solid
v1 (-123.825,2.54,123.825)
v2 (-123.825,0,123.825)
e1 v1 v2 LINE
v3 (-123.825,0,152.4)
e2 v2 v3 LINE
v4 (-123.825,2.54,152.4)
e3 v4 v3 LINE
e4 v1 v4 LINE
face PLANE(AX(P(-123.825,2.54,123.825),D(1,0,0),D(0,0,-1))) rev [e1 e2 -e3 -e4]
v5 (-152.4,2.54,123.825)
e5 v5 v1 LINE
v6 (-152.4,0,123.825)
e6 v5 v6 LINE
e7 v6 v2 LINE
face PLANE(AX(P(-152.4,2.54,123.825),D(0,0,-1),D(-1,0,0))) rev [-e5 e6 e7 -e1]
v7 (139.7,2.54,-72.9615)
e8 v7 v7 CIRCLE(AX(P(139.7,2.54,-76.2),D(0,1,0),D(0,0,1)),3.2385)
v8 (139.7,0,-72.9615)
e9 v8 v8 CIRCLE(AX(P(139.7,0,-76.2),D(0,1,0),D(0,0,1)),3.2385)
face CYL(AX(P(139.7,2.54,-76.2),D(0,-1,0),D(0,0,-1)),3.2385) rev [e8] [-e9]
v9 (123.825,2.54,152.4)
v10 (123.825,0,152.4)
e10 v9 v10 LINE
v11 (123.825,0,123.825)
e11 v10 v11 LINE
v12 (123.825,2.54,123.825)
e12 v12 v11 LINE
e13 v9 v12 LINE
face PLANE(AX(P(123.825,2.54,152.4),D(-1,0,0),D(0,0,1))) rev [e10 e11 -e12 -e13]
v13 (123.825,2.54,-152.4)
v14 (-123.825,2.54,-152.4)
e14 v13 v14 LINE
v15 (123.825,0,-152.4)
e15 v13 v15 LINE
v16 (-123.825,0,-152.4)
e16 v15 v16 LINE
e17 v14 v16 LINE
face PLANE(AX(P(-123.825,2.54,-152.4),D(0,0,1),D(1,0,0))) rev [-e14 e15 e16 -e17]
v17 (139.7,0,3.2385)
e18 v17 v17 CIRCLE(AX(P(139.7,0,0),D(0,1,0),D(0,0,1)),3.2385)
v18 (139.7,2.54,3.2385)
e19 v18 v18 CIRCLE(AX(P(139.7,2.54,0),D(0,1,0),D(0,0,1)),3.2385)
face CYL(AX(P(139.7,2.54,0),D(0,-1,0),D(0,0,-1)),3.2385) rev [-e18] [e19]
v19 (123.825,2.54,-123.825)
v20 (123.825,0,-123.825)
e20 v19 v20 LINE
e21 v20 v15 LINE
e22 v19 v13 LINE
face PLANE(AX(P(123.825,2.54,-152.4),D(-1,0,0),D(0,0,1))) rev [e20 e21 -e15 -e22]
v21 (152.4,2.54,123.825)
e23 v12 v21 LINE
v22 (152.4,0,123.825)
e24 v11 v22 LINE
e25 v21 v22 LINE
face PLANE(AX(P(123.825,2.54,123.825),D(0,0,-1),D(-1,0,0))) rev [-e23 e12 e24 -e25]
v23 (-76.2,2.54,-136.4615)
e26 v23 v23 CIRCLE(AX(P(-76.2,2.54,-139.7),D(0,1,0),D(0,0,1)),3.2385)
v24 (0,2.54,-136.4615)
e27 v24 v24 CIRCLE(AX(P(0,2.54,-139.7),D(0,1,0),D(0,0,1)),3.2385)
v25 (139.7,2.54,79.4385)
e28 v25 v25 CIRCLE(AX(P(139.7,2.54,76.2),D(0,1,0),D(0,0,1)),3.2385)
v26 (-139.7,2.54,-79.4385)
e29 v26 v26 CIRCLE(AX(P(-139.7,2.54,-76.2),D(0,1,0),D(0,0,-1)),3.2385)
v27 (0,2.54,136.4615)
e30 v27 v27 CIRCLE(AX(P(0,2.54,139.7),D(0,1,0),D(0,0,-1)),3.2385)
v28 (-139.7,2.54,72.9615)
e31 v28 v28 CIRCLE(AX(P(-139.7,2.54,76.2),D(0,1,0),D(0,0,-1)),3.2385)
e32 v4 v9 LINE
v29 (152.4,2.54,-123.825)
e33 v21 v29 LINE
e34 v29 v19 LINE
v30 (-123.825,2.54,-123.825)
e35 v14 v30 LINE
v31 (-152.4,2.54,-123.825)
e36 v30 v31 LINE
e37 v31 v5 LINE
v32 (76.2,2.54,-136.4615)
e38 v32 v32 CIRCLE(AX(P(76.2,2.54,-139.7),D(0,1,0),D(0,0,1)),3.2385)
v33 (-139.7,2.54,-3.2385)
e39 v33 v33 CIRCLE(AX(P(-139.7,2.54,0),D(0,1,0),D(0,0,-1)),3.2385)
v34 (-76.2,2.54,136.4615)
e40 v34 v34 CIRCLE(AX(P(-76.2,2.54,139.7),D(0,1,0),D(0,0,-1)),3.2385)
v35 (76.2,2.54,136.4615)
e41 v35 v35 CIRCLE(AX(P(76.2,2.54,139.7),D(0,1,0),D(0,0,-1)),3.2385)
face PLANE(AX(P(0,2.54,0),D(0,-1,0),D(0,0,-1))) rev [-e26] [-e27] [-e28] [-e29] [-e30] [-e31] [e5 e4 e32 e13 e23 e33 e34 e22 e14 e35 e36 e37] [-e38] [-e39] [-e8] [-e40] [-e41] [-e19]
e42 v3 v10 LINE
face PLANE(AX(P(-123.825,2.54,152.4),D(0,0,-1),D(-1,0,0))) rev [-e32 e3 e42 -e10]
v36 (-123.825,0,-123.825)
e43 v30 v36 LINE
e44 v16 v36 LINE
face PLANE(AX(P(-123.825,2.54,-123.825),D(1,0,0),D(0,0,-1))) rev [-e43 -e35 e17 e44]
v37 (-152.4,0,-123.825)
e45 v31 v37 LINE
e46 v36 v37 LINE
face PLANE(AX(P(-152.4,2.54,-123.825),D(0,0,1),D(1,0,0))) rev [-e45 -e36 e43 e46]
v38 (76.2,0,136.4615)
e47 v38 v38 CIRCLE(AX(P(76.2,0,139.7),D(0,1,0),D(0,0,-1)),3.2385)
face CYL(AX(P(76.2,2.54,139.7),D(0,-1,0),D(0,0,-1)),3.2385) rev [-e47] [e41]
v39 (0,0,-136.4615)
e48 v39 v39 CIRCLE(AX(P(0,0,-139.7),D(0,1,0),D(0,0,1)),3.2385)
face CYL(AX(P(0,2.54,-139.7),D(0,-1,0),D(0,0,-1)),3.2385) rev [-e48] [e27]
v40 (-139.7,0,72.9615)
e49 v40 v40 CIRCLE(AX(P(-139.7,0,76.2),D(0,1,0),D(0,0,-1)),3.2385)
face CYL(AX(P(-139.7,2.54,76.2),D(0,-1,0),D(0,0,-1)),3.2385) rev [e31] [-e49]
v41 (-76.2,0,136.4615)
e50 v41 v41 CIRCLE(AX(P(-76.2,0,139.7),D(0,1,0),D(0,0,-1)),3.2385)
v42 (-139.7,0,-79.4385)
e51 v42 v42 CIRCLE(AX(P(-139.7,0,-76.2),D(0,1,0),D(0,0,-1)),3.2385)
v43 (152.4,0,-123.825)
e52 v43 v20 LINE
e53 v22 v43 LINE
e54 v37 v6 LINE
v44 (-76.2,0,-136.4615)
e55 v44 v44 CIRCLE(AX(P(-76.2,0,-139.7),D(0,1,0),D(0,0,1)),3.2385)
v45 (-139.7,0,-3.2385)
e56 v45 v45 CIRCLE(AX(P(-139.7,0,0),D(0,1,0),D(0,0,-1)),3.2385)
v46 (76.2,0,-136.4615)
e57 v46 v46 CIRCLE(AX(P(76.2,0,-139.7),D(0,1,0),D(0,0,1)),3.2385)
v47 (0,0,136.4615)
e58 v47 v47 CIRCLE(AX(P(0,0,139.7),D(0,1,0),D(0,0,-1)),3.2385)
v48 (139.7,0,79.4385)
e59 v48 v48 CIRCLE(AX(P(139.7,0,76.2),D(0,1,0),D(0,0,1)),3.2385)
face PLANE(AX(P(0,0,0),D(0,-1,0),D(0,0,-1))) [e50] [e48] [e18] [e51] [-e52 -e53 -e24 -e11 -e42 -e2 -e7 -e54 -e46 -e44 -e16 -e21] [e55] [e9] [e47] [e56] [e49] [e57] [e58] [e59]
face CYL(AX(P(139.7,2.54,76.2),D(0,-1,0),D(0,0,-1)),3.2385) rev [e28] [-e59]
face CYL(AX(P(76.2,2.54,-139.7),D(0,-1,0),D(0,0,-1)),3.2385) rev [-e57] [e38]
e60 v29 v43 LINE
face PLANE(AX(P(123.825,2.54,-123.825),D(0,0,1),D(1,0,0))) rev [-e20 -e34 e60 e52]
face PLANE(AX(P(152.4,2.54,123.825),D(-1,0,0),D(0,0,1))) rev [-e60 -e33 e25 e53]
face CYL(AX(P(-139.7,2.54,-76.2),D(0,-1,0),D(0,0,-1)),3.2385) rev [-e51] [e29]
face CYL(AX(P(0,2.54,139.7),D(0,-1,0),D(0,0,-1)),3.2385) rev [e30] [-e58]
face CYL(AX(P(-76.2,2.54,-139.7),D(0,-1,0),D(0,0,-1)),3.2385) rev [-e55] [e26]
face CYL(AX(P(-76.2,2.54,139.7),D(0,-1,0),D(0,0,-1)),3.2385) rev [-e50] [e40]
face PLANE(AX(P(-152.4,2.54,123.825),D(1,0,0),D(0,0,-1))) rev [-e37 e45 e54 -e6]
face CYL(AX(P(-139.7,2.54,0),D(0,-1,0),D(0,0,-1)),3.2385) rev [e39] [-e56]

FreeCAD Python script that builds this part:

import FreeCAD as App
import Part
import Sketcher

V = App.Vector
Q = App.Units.Quantity


def add_polygon(sketch, points):
    """Adds a closed chain of lines whose ends are joined by coincident constraints."""
    first, n = sketch.GeometryCount, len(points)
    for a, b in zip(points, points[1:] + points[:1]):
        sketch.addGeometry(Part.LineSegment(App.Vector(*a, 0), App.Vector(*b, 0)), False)
    for i in range(n):
        sketch.addConstraint(Sketcher.Constraint("Coincident", first + i, 2, first + (i + 1) % n, 1))

doc = App.newDocument("Part")
body = doc.addObject("PartDesign::Body", "Body")

# Sketch on XZ plane
sketch1 = doc.addObject("Sketcher::SketchObject", "Sketch")
body.addObject(sketch1)
sketch1.AttachmentSupport = (doc.XZ_Plane, [""])
sketch1.MapMode = "FlatFace"
add_polygon(sketch1, [(123.8, -123.8), (123.8, -152.4), (-123.8, -152.4), (-123.8, -123.8), (-152.4, -123.8), (-152.4, 123.8), (-123.8, 123.8), (-123.8, 152.4), (123.8, 152.4), (123.8, 123.8), (152.4, 123.8), (152.4, -123.8)])  # lines 0-11
sketch1.addGeometry(Part.Circle(V(76.2, 139.7, 0), V(0, 0, 1), 3.2), False)  # 12
sketch1.addGeometry(Part.Circle(V(139.7, 76.2, 0), V(0, 0, 1), 3.2), False)  # 13
sketch1.addGeometry(Part.Circle(V(0, 139.7, 0), V(0, 0, 1), 3.2), False)  # 14
sketch1.addGeometry(Part.Circle(V(-76.2, 139.7, 0), V(0, 0, 1), 3.2), False)  # 15
sketch1.addGeometry(Part.Circle(V(-139.7, 76.2, 0), V(0, 0, 1), 3.2), False)  # 16
sketch1.addGeometry(Part.Circle(V(139.7, 0, 0), V(0, 0, 1), 3.2), False)  # 17
sketch1.addGeometry(Part.Circle(V(139.7, -76.2, 0), V(0, 0, 1), 3.2), False)  # 18
sketch1.addGeometry(Part.Circle(V(76.2, -139.7, 0), V(0, 0, 1), 3.2), False)  # 19
sketch1.addGeometry(Part.Circle(V(-139.7, 0, 0), V(0, 0, 1), 3.2), False)  # 20
sketch1.addGeometry(Part.Circle(V(0, -139.7, 0), V(0, 0, 1), 3.2), False)  # 21
sketch1.addGeometry(Part.Circle(V(-139.7, -76.2, 0), V(0, 0, 1), 3.2), False)  # 22
sketch1.addGeometry(Part.Circle(V(-76.2, -139.7, 0), V(0, 0, 1), 3.2), False)  # 23
sketch1.addConstraint([
    Sketcher.Constraint("Vertical", 0),
    Sketcher.Constraint("Horizontal", 1),
    Sketcher.Constraint("Vertical", 2),
    Sketcher.Constraint("Horizontal", 3),
    Sketcher.Constraint("Vertical", 4),
    Sketcher.Constraint("Horizontal", 5),
    Sketcher.Constraint("Vertical", 6),
    Sketcher.Constraint("Horizontal", 7),
    Sketcher.Constraint("Vertical", 8),
    Sketcher.Constraint("Horizontal", 9),
    Sketcher.Constraint("Vertical", 10),
    Sketcher.Constraint("Horizontal", 11),
    Sketcher.Constraint("Equal", 12, 13),
    Sketcher.Constraint("Equal", 13, 14),
    Sketcher.Constraint("Equal", 14, 15),
    Sketcher.Constraint("Equal", 15, 16),
    Sketcher.Constraint("Equal", 16, 17),
    Sketcher.Constraint("Equal", 17, 18),
    Sketcher.Constraint("Equal", 18, 19),
    Sketcher.Constraint("Equal", 19, 20),
    Sketcher.Constraint("Equal", 20, 21),
    Sketcher.Constraint("Equal", 21, 22),
    Sketcher.Constraint("Equal", 22, 23),
    Sketcher.Constraint("Symmetric", 16, 3, 18, 3, -1, 1),
    Sketcher.Constraint("Symmetric", 15, 3, 19, 3, -1, 1),
    Sketcher.Constraint("Symmetric", 17, 3, 20, 3, -1, 1),
    Sketcher.Constraint("Symmetric", 14, 3, 21, 3, -1, 1),
    Sketcher.Constraint("Symmetric", 13, 3, 22, 3, -1, 1),
    Sketcher.Constraint("Symmetric", 12, 3, 23, 3, -1, 1),
    Sketcher.Constraint("Symmetric", 0, 2, 6, 2, -1, 1),
    Sketcher.Constraint("Symmetric", 2, 2, 8, 2, -1, 1),
    Sketcher.Constraint("Symmetric", 4, 2, 10, 2, -1, 1),
    Sketcher.Constraint("Symmetric", 12, 3, 15, 3, -2),
    Sketcher.Constraint("Symmetric", 13, 3, 16, 3, -2),
    Sketcher.Constraint("Symmetric", 5, 2, 8, 2, -2),
    Sketcher.Constraint("PointOnObject", 14, 3, -2),
    Sketcher.Constraint("PointOnObject", 17, 3, -1),
    Sketcher.Constraint("Horizontal", 12, 3, 14, 3),
    Sketcher.Constraint("Vertical", 13, 3, 17, 3),
    Sketcher.Constraint("Equal", 11, 0),
    Sketcher.Constraint("Equal", 7, 4),
    Sketcher.Constraint("Diameter", 12, Q("0.255 in")),
    Sketcher.Constraint("DistanceX", -1, 1, 12, 3, Q("3 in")),
    Sketcher.Constraint("DistanceY", -1, 1, 13, 3, Q("3 in")),
    Sketcher.Constraint("DistanceY", 0, 2, -1, 1, Q("6 in")),
    Sketcher.Constraint("DistanceX", 16, 3, 13, 3, Q("11 in")),
    Sketcher.Constraint("DistanceY", 19, 3, 12, 3, Q("11 in")),
    Sketcher.Constraint("DistanceX", 1, 2, 1, 1, Q("9.75 in")),
])
pad1 = doc.addObject("PartDesign::Pad", "Pad")
body.addObject(pad1)
pad1.Profile = sketch1
pad1.Length = Q("0.1 in")
pad1.Reversed = True

doc.recompute()
